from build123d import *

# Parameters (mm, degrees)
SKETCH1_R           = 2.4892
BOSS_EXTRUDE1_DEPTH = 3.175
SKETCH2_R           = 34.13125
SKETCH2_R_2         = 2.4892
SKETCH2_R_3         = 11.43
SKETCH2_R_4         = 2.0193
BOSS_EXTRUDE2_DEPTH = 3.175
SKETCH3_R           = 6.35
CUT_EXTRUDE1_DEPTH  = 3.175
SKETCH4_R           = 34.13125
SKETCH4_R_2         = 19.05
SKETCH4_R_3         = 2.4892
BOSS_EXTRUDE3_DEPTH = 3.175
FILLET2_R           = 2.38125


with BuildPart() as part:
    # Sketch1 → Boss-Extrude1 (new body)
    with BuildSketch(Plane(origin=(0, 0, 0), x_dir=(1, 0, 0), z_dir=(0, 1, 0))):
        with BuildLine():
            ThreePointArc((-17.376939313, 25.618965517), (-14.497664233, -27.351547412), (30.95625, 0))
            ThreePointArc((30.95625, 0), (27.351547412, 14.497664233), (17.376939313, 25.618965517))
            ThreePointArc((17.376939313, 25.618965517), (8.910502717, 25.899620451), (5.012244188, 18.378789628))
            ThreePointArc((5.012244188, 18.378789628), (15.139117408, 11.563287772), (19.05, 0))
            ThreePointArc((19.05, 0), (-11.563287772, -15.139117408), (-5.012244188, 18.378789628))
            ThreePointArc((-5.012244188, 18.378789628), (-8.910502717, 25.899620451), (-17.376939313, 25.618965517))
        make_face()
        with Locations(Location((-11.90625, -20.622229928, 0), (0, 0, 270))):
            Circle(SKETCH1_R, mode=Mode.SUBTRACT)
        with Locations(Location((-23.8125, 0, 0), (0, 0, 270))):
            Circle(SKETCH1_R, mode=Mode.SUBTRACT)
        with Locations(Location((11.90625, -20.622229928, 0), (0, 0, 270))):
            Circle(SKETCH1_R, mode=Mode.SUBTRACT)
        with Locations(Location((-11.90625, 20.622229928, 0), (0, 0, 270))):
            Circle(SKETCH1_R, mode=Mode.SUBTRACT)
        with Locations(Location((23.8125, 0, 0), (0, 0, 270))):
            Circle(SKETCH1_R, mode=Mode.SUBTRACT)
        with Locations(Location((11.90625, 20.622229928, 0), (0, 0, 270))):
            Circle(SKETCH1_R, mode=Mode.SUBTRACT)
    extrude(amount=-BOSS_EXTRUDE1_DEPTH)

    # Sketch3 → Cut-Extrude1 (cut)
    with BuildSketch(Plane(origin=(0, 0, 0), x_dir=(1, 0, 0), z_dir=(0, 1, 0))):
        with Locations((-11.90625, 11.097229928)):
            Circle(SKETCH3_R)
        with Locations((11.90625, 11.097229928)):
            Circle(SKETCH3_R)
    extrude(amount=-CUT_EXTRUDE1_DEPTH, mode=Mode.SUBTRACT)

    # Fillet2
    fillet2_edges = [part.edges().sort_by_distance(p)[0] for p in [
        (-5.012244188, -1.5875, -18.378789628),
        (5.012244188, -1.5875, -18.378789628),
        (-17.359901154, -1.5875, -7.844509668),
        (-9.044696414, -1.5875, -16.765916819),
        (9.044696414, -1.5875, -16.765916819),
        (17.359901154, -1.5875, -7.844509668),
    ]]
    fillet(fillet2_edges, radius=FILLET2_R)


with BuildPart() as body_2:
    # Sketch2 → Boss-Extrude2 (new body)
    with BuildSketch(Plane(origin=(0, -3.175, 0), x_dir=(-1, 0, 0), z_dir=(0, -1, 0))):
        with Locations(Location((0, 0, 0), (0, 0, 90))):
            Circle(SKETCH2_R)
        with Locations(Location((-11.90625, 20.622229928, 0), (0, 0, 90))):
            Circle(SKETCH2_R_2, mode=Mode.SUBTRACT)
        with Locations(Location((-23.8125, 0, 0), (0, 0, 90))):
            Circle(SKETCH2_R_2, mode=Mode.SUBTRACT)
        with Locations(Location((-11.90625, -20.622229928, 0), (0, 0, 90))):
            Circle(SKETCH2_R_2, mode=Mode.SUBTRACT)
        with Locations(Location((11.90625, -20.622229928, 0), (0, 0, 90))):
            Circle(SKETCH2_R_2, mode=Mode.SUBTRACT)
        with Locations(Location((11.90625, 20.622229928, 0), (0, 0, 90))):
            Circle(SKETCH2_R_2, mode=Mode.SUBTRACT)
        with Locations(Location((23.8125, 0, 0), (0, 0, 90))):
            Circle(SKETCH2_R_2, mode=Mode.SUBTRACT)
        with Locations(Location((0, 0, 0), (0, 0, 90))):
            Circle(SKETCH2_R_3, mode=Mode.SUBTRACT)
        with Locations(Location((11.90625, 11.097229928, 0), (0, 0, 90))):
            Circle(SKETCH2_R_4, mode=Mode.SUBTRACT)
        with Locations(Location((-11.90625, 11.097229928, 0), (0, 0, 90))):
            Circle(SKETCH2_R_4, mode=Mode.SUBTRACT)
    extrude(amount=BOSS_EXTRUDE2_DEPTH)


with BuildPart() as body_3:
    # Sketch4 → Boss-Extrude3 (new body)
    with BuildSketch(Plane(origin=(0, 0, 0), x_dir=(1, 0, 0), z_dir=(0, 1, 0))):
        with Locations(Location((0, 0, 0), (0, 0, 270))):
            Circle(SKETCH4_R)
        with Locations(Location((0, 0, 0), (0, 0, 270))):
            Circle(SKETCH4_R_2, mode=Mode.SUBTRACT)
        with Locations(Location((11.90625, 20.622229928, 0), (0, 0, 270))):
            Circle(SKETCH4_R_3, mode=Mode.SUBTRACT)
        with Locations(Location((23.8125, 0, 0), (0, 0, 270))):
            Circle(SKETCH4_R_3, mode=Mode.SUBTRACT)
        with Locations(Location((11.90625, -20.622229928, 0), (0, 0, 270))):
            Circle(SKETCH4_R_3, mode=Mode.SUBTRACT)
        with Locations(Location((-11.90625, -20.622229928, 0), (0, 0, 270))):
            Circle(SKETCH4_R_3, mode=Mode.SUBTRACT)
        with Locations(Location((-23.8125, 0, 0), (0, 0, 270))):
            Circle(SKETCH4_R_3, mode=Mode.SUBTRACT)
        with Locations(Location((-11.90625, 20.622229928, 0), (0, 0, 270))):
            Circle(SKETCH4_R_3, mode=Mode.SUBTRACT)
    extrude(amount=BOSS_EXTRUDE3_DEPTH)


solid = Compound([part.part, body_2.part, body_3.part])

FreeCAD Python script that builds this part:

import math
import FreeCAD as App
import Part
import Sketcher
from FreeCAD import Vector
Q = App.Units.Quantity


def edges_at(feature, points):
    """Names of the edges that pass closest to the given points."""
    edges = feature.Shape.Edges
    near = lambda p: min(range(len(edges)), key=lambda i: edges[i].distToShape(Part.Vertex(*p))[0])
    return sorted({f"Edge{near(p) + 1}" for p in points})

doc = App.newDocument("Part")
body = doc.addObject("PartDesign::Body", "Body")

# Sketch on XZ plane
sketch1 = body.newObject("Sketcher::SketchObject", "Sketch")
sketch1.AttachmentSupport = (doc.getObject("XZ_Plane"), [""])
sketch1.MapMode = "FlatFace"
sketch1.addGeometry(Part.ArcOfCircle(Part.Circle(Vector(0, 0, 0), Vector(0, 0, 1), 30.95625), math.radians(0), math.radians(235.851576)), False)
sketch1.addGeometry(Part.ArcOfCircle(Part.Circle(Vector(0, 0, 0), Vector(0, 0, 1), 30.95625), math.radians(-55.851576), math.radians(0)), False)
sketch1.addGeometry(Part.ArcOfCircle(Part.Circle(Vector(12.921314, -19.05, 0), Vector(0, 0, 1), 7.9375), math.radians(175.149165), math.radians(304.148424)), False)
sketch1.addGeometry(Part.ArcOfCircle(Part.Circle(Vector(0, 0, 0), Vector(0, 0, 1), 19.05), math.radians(-74.745325), math.radians(0)), False)
sketch1.addGeometry(Part.ArcOfCircle(Part.Circle(Vector(0, 0, 0), Vector(0, 0, 1), 19.05), math.radians(0), math.radians(254.745325)), False)
sketch1.addGeometry(Part.ArcOfCircle(Part.Circle(Vector(-12.921314, -19.05, 0), Vector(0, 0, 1), 7.9375), math.radians(-124.148424), math.radians(4.850835)), False)
sketch1.addGeometry(Part.Circle(Vector(-11.90625, 20.62223, 0), Vector(0, 0, 1), 2.4892), False)
sketch1.addGeometry(Part.Circle(Vector(11.90625, 20.62223, 0), Vector(0, 0, 1), 2.4892), False)
sketch1.addGeometry(Part.Circle(Vector(-23.8125, 0, 0), Vector(0, 0, 1), 2.4892), False)
sketch1.addGeometry(Part.Circle(Vector(-11.90625, -20.62223, 0), Vector(0, 0, 1), 2.4892), False)
sketch1.addGeometry(Part.Circle(Vector(23.8125, 0, 0), Vector(0, 0, 1), 2.4892), False)
sketch1.addGeometry(Part.Circle(Vector(11.90625, -20.62223, 0), Vector(0, 0, 1), 2.4892), False)
sketch1.addConstraint(Sketcher.Constraint("Tangent", 0, 1, 1, 2))
sketch1.addConstraint(Sketcher.Constraint("Tangent", 1, 1, 2, 2))
sketch1.addConstraint(Sketcher.Constraint("Coincident", 2, 1, 3, 1))
sketch1.addConstraint(Sketcher.Constraint("Tangent", 3, 2, 4, 1))
sketch1.addConstraint(Sketcher.Constraint("Coincident", 4, 2, 5, 2))
sketch1.addConstraint(Sketcher.Constraint("Tangent", 5, 1, 0, 2))
sketch1.addConstraint(Sketcher.Constraint("Coincident", 0, 3, -1, 1))
sketch1.addConstraint(Sketcher.Constraint("Coincident", 3, 3, -1, 1))
sketch1.addConstraint(Sketcher.Constraint("Equal", 0, 1))
sketch1.addConstraint(Sketcher.Constraint("Equal", 3, 4))
sketch1.addConstraint(Sketcher.Constraint("Equal", 2, 5))
sketch1.addConstraint(Sketcher.Constraint("Equal", 6, 7))
sketch1.addConstraint(Sketcher.Constraint("Equal", 7, 8))
sketch1.addConstraint(Sketcher.Constraint("Equal", 8, 9))
sketch1.addConstraint(Sketcher.Constraint("Equal", 9, 10))
sketch1.addConstraint(Sketcher.Constraint("Equal", 10, 11))
sketch1.addConstraint(Sketcher.Constraint("Symmetric", 7, 3, 9, 3, -1, 1))
sketch1.addConstraint(Sketcher.Constraint("Symmetric", 8, 3, 10, 3, -1, 1))
sketch1.addConstraint(Sketcher.Constraint("Symmetric", 6, 3, 11, 3, -1, 1))
sketch1.addConstraint(Sketcher.Constraint("Symmetric", 6, 3, 7, 3, -2))
sketch1.addConstraint(Sketcher.Constraint("PointOnObject", 8, 3, -1))
sketch1.addConstraint(Sketcher.Constraint("PointOnObject", 0, 1, -1))
sketch1.addConstraint(Sketcher.Constraint("PointOnObject", 3, 2, -1))
sketch1.addConstraint(Sketcher.Constraint("Horizontal", 2, 3, 5, 3))
sketch1.addConstraint(Sketcher.Constraint("Radius", 3, Q("0.75 in")))
sketch1.addConstraint(Sketcher.Constraint("Diameter", 6, Q("0.196 in")))
sketch1.addConstraint(Sketcher.Constraint("Radius", 0, Q("1.21875 in")))
sketch1.addConstraint(Sketcher.Constraint("Radius", 2, Q("0.3125 in")))
sketch1.addConstraint(Sketcher.Constraint("DistanceY", 2, 3, -1, 1, Q("0.75 in")))
sketch1.addConstraint(Sketcher.Constraint("DistanceX", 7, 3, 0, 1, Q("0.75 in")))
sketch1.addConstraint(Sketcher.Constraint("DistanceX", 8, 3, -1, 1, Q("0.9375 in")))
sketch1.addConstraint(Sketcher.Constraint("DistanceY", -1, 1, 6, 3, Q("20.62223 mm")))
pad1 = body.newObject("PartDesign::Pad", "Pad")
pad1.Profile = sketch1
pad1.Length = Q("0.125 in")

# Sketch on XZ plane
sketch2 = body.newObject("Sketcher::SketchObject", "Sketch001")
sketch2.AttachmentSupport = (doc.getObject("XZ_Plane"), [""])
sketch2.MapMode = "FlatFace"
sketch2.addGeometry(Part.Circle(Vector(-11.90625, -11.09723, 0), Vector(0, 0, 1), 6.35), False)
sketch2.addGeometry(Part.Circle(Vector(11.90625, -11.09723, 0), Vector(0, 0, 1), 6.35), False)
sketch2.addConstraint(Sketcher.Constraint("Equal", 0, 1))
sketch2.addConstraint(Sketcher.Constraint("Symmetric", 0, 3, 1, 3, -2))
sketch2.addConstraint(Sketcher.Constraint("Diameter", 0, Q("0.5 in")))
sketch2.addConstraint(Sketcher.Constraint("DistanceX", 0, 3, -1, 1, Q("0.46875 in")))
sketch2.addConstraint(Sketcher.Constraint("DistanceY", 0, 3, -1, 1, Q("11.09723 mm")))
pocket1 = body.newObject("PartDesign::Pocket", "Pocket")
pocket1.Profile = sketch2
pocket1.Length = Q("0.125 in")
pocket1.Reversed = True
doc.recompute()

fillet = body.newObject("PartDesign::Fillet", "Fillet")
fillet.Base = (pocket1, edges_at(pocket1, [
    (-5.012, -1.587, -18.379),
    (5.012, -1.587, -18.379),
    (-17.36, -1.587, -7.845),
    (-9.045, -1.587, -16.766),
    (9.045, -1.587, -16.766),
    (17.36, -1.587, -7.845),
]))
fillet.Radius = Q("0.09375 in")
body2 = doc.addObject("PartDesign::Body", "Body001")

# Sketch on XZ plane
sketch3 = body2.newObject("Sketcher::SketchObject", "Sketch002")
sketch3.AttachmentSupport = (doc.getObject("XZ_Plane001"), [""])
sketch3.MapMode = "FlatFace"
sketch3.AttachmentOffset = App.Placement(Vector(0, 0, 0.125 * 25.4), App.Rotation())
sketch3.addGeometry(Part.Circle(Vector(0, 0, 0), Vector(0, 0, 1), 34.13125), False)
sketch3.addGeometry(Part.Circle(Vector(-11.90625, 20.62223, 0), Vector(0, 0, 1), 2.4892), False)
sketch3.addGeometry(Part.Circle(Vector(0, 0, 0), Vector(0, 0, 1), 11.43), False)
sketch3.addGeometry(Part.Circle(Vector(-23.8125, 0, 0), Vector(0, 0, 1), 2.4892), False)
sketch3.addGeometry(Part.Circle(Vector(-11.90625, -11.09723, 0), Vector(0, 0, 1), 2.0193), False)
sketch3.addGeometry(Part.Circle(Vector(-11.90625, -20.62223, 0), Vector(0, 0, 1), 2.4892), False)
sketch3.addGeometry(Part.Circle(Vector(11.90625, 20.62223, 0), Vector(0, 0, 1), 2.4892), False)
sketch3.addGeometry(Part.Circle(Vector(23.8125, 0, 0), Vector(0, 0, 1), 2.4892), False)
sketch3.addGeometry(Part.Circle(Vector(11.90625, -11.09723, 0), Vector(0, 0, 1), 2.0193), False)
sketch3.addGeometry(Part.Circle(Vector(11.90625, -20.62223, 0), Vector(0, 0, 1), 2.4892), False)
sketch3.addConstraint(Sketcher.Constraint("Coincident", 0, 3, -1, 1))
sketch3.addConstraint(Sketcher.Constraint("Coincident", 2, 3, -1, 1))
sketch3.addConstraint(Sketcher.Constraint("Equal", 1, 3))
sketch3.addConstraint(Sketcher.Constraint("Equal", 3, 5))
sketch3.addConstraint(Sketcher.Constraint("Equal", 5, 6))
sketch3.addConstraint(Sketcher.Constraint("Equal", 6, 7))
sketch3.addConstraint(Sketcher.Constraint("Equal", 4, 8))
sketch3.addConstraint(Sketcher.Constraint("Equal", 7, 9))
sketch3.addConstraint(Sketcher.Constraint("Symmetric", 5, 3, 6, 3, -1, 1))
sketch3.addConstraint(Sketcher.Constraint("Symmetric", 3, 3, 7, 3, -1, 1))
sketch3.addConstraint(Sketcher.Constraint("Symmetric", 1, 3, 9, 3, -1, 1))
sketch3.addConstraint(Sketcher.Constraint("Symmetric", 1, 3, 6, 3, -2))
sketch3.addConstraint(Sketcher.Constraint("Symmetric", 4, 3, 8, 3, -2))
sketch3.addConstraint(Sketcher.Constraint("PointOnObject", 3, 3, -1))
sketch3.addConstraint(Sketcher.Constraint("Vertical", 1, 3, 4, 3))
sketch3.addConstraint(Sketcher.Constraint("Diameter", 2, Q("0.9 in")))
sketch3.addConstraint(Sketcher.Constraint("Diameter", 0, Q("2.6875 in")))
sketch3.addConstraint(Sketcher.Constraint("Diameter", 1, Q("0.196 in")))
sketch3.addConstraint(Sketcher.Constraint("Diameter", 4, Q("0.159 in")))
sketch3.addConstraint(Sketcher.Constraint("DistanceX", 1, 3, -1, 1, Q("0.46875 in")))
sketch3.addConstraint(Sketcher.Constraint("DistanceX", 3, 3, -1, 1, Q("0.9375 in")))
sketch3.addConstraint(Sketcher.Constraint("DistanceY", 5, 3, 4, 3, Q("0.375 in")))
sketch3.addConstraint(Sketcher.Constraint("DistanceY", -1, 1, 1, 3, Q("20.62223 mm")))
pad2 = body2.newObject("PartDesign::Pad", "Pad001")
pad2.Profile = sketch3
pad2.Length = Q("0.125 in")
body3 = doc.addObject("PartDesign::Body", "Body002")

# Sketch on XZ plane
sketch4 = body3.newObject("Sketcher::SketchObject", "Sketch003")
sketch4.AttachmentSupport = (doc.getObject("XZ_Plane002"), [""])
sketch4.MapMode = "FlatFace"
sketch4.addGeometry(Part.Circle(Vector(0, 0, 0), Vector(0, 0, 1), 34.13125), False)
sketch4.addGeometry(Part.Circle(Vector(-11.90625, -20.62223, 0), Vector(0, 0, 1), 2.4892), False)
sketch4.addGeometry(Part.Circle(Vector(-23.8125, 0, 0), Vector(0, 0, 1), 2.4892), False)
sketch4.addGeometry(Part.Circle(Vector(-11.90625, 20.62223, 0), Vector(0, 0, 1), 2.4892), False)
sketch4.addGeometry(Part.Circle(Vector(11.90625, -20.62223, 0), Vector(0, 0, 1), 2.4892), False)
sketch4.addGeometry(Part.Circle(Vector(23.8125, 0, 0), Vector(0, 0, 1), 2.4892), False)
sketch4.addGeometry(Part.Circle(Vector(0, 0, 0), Vector(0, 0, 1), 19.05), False)
sketch4.addGeometry(Part.Circle(Vector(11.90625, 20.62223, 0), Vector(0, 0, 1), 2.4892), False)
sketch4.addConstraint(Sketcher.Constraint("Coincident", 0, 3, -1, 1))
sketch4.addConstraint(Sketcher.Constraint("Coincident", 6, 3, -1, 1))
sketch4.addConstraint(Sketcher.Constraint("Equal", 1, 2))
sketch4.addConstraint(Sketcher.Constraint("Equal", 2, 3))
sketch4.addConstraint(Sketcher.Constraint("Equal", 3, 4))
sketch4.addConstraint(Sketcher.Constraint("Equal", 4, 5))
sketch4.addConstraint(Sketcher.Constraint("Equal", 5, 7))
sketch4.addConstraint(Sketcher.Constraint("Symmetric", 3, 3, 4, 3, -1, 1))
sketch4.addConstraint(Sketcher.Constraint("Symmetric", 2, 3, 5, 3, -1, 1))
sketch4.addConstraint(Sketcher.Constraint("Symmetric", 1, 3, 7, 3, -1, 1))
sketch4.addConstraint(Sketcher.Constraint("Symmetric", 1, 3, 4, 3, -2))
sketch4.addConstraint(Sketcher.Constraint("PointOnObject", 2, 3, -1))
sketch4.addConstraint(Sketcher.Constraint("Diameter", 6, Q("1.5 in")))
sketch4.addConstraint(Sketcher.Constraint("Diameter", 0, Q("2.6875 in")))
sketch4.addConstraint(Sketcher.Constraint("Diameter", 1, Q("0.196 in")))
sketch4.addConstraint(Sketcher.Constraint("DistanceX", 1, 3, -1, 1, Q("0.46875 in")))
sketch4.addConstraint(Sketcher.Constraint("DistanceX", 2, 3, -1, 1, Q("0.9375 in")))
sketch4.addConstraint(Sketcher.Constraint("DistanceY", 1, 3, -1, 1, Q("20.62223 mm")))
pad3 = body3.newObject("PartDesign::Pad", "Pad002")
pad3.Profile = sketch4
pad3.Length = Q("0.125 in")
pad3.Reversed = True

doc.recompute()
